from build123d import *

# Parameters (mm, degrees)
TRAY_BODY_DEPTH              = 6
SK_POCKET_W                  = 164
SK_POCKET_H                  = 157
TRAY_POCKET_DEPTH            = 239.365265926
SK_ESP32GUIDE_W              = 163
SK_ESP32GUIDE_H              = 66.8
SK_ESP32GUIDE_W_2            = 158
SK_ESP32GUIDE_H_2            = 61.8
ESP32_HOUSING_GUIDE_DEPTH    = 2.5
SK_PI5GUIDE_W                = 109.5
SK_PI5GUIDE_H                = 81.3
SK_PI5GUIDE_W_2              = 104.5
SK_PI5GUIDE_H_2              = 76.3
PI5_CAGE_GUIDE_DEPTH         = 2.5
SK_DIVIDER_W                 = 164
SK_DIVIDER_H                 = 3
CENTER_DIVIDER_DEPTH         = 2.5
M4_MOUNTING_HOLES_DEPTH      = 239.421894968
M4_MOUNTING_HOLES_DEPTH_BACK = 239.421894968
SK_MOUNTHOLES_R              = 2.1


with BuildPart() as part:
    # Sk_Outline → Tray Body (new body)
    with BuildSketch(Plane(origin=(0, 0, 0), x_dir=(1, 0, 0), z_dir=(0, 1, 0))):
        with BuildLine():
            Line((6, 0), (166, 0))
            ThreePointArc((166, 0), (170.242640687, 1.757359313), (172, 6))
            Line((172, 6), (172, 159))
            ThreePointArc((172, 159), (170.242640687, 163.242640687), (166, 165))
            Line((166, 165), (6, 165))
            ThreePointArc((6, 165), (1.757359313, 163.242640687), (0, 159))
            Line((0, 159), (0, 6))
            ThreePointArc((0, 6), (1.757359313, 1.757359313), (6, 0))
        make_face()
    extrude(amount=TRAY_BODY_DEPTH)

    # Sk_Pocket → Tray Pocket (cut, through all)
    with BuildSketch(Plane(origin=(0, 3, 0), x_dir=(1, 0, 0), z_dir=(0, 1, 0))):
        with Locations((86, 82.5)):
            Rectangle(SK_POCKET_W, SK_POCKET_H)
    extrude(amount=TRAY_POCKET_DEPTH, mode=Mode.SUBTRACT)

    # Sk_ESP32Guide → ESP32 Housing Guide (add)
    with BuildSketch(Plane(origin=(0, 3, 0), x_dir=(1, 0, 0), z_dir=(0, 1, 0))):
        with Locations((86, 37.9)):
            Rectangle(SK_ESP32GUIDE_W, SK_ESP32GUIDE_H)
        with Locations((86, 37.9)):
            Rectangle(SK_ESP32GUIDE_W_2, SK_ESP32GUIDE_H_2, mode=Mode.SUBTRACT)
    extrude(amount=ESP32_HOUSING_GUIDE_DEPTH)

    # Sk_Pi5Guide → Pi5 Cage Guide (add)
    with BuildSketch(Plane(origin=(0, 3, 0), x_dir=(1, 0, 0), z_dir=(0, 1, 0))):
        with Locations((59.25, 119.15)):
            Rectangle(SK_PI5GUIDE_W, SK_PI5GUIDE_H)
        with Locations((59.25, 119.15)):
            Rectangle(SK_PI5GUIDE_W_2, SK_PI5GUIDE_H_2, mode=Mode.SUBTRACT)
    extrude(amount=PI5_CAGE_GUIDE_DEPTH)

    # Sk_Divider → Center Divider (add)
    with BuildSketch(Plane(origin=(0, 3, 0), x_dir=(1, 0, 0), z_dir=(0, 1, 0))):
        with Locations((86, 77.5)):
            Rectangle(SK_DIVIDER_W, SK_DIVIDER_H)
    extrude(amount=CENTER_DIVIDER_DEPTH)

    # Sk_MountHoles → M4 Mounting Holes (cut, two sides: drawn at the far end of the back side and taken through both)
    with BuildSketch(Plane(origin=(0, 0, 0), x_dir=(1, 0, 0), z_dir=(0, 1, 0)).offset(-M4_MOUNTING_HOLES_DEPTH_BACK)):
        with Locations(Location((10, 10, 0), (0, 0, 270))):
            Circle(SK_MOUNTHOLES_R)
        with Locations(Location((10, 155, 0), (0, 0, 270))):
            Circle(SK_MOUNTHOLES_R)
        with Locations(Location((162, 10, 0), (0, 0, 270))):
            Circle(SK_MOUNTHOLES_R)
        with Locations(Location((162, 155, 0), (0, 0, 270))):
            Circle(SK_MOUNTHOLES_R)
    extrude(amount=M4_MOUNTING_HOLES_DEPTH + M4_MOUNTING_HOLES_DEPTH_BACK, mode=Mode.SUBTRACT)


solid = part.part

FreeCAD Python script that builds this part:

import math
import FreeCAD as App
import Part
import Sketcher
from FreeCAD import Vector
Q = App.Units.Quantity


def add_polygon(sketch, points):
    """Adds a closed chain of lines whose ends are joined by coincident constraints."""
    first, n = sketch.GeometryCount, len(points)
    for a, b in zip(points, points[1:] + points[:1]):
        sketch.addGeometry(Part.LineSegment(App.Vector(*a, 0), App.Vector(*b, 0)), False)
    for i in range(n):
        sketch.addConstraint(Sketcher.Constraint("Coincident", first + i, 2, first + (i + 1) % n, 1))

doc = App.newDocument("Part")
body = doc.addObject("PartDesign::Body", "Body")

# Sketch on XZ plane
sketch1 = body.newObject("Sketcher::SketchObject", "Sketch")
sketch1.AttachmentSupport = (doc.getObject("XZ_Plane"), [""])
sketch1.MapMode = "FlatFace"
sketch1.addGeometry(Part.LineSegment(Vector(6, 0, 0), Vector(166, 0, 0)), False)
sketch1.addGeometry(Part.ArcOfCircle(Part.Circle(Vector(166, -6, 0), Vector(0, 0, 1), 6), math.radians(0), math.radians(90)), False)
sketch1.addGeometry(Part.LineSegment(Vector(172, -6, 0), Vector(172, -159, 0)), False)
sketch1.addGeometry(Part.ArcOfCircle(Part.Circle(Vector(166, -159, 0), Vector(0, 0, 1), 6), math.radians(-90), math.radians(0)), False)
sketch1.addGeometry(Part.LineSegment(Vector(166, -165, 0), Vector(6, -165, 0)), False)
sketch1.addGeometry(Part.ArcOfCircle(Part.Circle(Vector(6, -159, 0), Vector(0, 0, 1), 6), math.radians(180), math.radians(270)), False)
sketch1.addGeometry(Part.LineSegment(Vector(0, -159, 0), Vector(0, -6, 0)), False)
sketch1.addGeometry(Part.ArcOfCircle(Part.Circle(Vector(6, -6, 0), Vector(0, 0, 1), 6), math.radians(90), math.radians(180)), False)
sketch1.addConstraint(Sketcher.Constraint("Tangent", 0, 2, 1, 2))
sketch1.addConstraint(Sketcher.Constraint("Tangent", 1, 1, 2, 1))
sketch1.addConstraint(Sketcher.Constraint("Tangent", 2, 2, 3, 2))
sketch1.addConstraint(Sketcher.Constraint("Tangent", 3, 1, 4, 1))
sketch1.addConstraint(Sketcher.Constraint("Tangent", 4, 2, 5, 2))
sketch1.addConstraint(Sketcher.Constraint("Tangent", 5, 1, 6, 1))
sketch1.addConstraint(Sketcher.Constraint("Tangent", 6, 2, 7, 2))
sketch1.addConstraint(Sketcher.Constraint("Tangent", 7, 1, 0, 1))
sketch1.addConstraint(Sketcher.Constraint("Horizontal", 0))
sketch1.addConstraint(Sketcher.Constraint("Vertical", 2))
sketch1.addConstraint(Sketcher.Constraint("Horizontal", 4))
sketch1.addConstraint(Sketcher.Constraint("Vertical", 6))
sketch1.addConstraint(Sketcher.Constraint("Equal", 1, 3))
sketch1.addConstraint(Sketcher.Constraint("Equal", 3, 5))
sketch1.addConstraint(Sketcher.Constraint("Equal", 5, 7))
sketch1.addConstraint(Sketcher.Constraint("PointOnObject", 0, 2, -1))
sketch1.addConstraint(Sketcher.Constraint("PointOnObject", 5, 1, -2))
sketch1.addConstraint(Sketcher.Constraint("Radius", 1, Q("6 mm")))
sketch1.addConstraint(Sketcher.Constraint("DistanceX", 0, 1, 0, 2, Q("160 mm")))
sketch1.addConstraint(Sketcher.Constraint("DistanceY", 2, 2, 2, 1, Q("153 mm")))
pad1 = body.newObject("PartDesign::Pad", "Pad")
pad1.Profile = sketch1
pad1.Length = 6
pad1.Reversed = True

# Sketch on XZ plane
sketch2 = body.newObject("Sketcher::SketchObject", "Sketch001")
sketch2.AttachmentSupport = (doc.getObject("XZ_Plane"), [""])
sketch2.MapMode = "FlatFace"
sketch2.AttachmentOffset = App.Placement(Vector(0, 0, -3), App.Rotation())
add_polygon(sketch2, [(4, -161), (4, -4), (168, -4), (168, -161)])  # lines 0-3
sketch2.addConstraint(Sketcher.Constraint("Vertical", 0))
sketch2.addConstraint(Sketcher.Constraint("Horizontal", 1))
sketch2.addConstraint(Sketcher.Constraint("Vertical", 2))
sketch2.addConstraint(Sketcher.Constraint("Horizontal", 3))
sketch2.addConstraint(Sketcher.Constraint("DistanceX", 1, 1, 1, 2, Q("164 mm")))
sketch2.addConstraint(Sketcher.Constraint("DistanceY", 0, 1, 0, 2, Q("157 mm")))
sketch2.addConstraint(Sketcher.Constraint("DistanceX", -1, 1, 0, 2, Q("4 mm")))
sketch2.addConstraint(Sketcher.Constraint("DistanceY", 0, 2, -1, 1, Q("4 mm")))
pocket1 = body.newObject("PartDesign::Pocket", "Pocket")
pocket1.Profile = sketch2
pocket1.Type = "ThroughAll"

# Sketch on XZ plane
sketch3 = body.newObject("Sketcher::SketchObject", "Sketch002")
sketch3.AttachmentSupport = (doc.getObject("XZ_Plane"), [""])
sketch3.MapMode = "FlatFace"
sketch3.AttachmentOffset = App.Placement(Vector(0, 0, -3), App.Rotation())
add_polygon(sketch3, [(4, -71), (4, -4), (168, -4), (168, -71)])  # lines 0-3
add_polygon(sketch3, [(165, -7), (7, -7), (7, -69), (165, -69)])  # lines 4-7
sketch3.addConstraint(Sketcher.Constraint("Vertical", 0))
sketch3.addConstraint(Sketcher.Constraint("Horizontal", 1))
sketch3.addConstraint(Sketcher.Constraint("Vertical", 2))
sketch3.addConstraint(Sketcher.Constraint("Horizontal", 3))
sketch3.addConstraint(Sketcher.Constraint("Horizontal", 4))
sketch3.addConstraint(Sketcher.Constraint("Vertical", 5))
sketch3.addConstraint(Sketcher.Constraint("Horizontal", 6))
sketch3.addConstraint(Sketcher.Constraint("Vertical", 7))
sketch3.addConstraint(Sketcher.Constraint("DistanceX", 1, 1, 1, 2, Q("163 mm")))
sketch3.addConstraint(Sketcher.Constraint("DistanceX", 4, 2, 4, 1, Q("158 mm")))
sketch3.addConstraint(Sketcher.Constraint("DistanceY", 0, 1, 0, 2, Q("66.8 mm")))
sketch3.addConstraint(Sketcher.Constraint("DistanceY", 5, 2, 5, 1, Q("61.8 mm")))
sketch3.addConstraint(Sketcher.Constraint("DistanceX", -1, 1, 4, 2, Q("7 mm")))
sketch3.addConstraint(Sketcher.Constraint("DistanceY", 4, 2, -1, 1, Q("7 mm")))
sketch3.addConstraint(Sketcher.Constraint("DistanceX", -1, 1, 0, 2, Q("4.5 mm")))
sketch3.addConstraint(Sketcher.Constraint("DistanceY", 0, 2, -1, 1, Q("4.5 mm")))
pad2 = body.newObject("PartDesign::Pad", "Pad001")
pad2.Profile = sketch3
pad2.Length = 2.5
pad2.Reversed = True

# Sketch on XZ plane
sketch4 = body.newObject("Sketcher::SketchObject", "Sketch003")
sketch4.AttachmentSupport = (doc.getObject("XZ_Plane"), [""])
sketch4.MapMode = "FlatFace"
sketch4.AttachmentOffset = App.Placement(Vector(0, 0, -3), App.Rotation())
add_polygon(sketch4, [(4, -160), (4, -78), (114, -78), (114, -160)])  # lines 0-3
add_polygon(sketch4, [(112, -81), (7, -81), (7, -157), (112, -157)])  # lines 4-7
sketch4.addConstraint(Sketcher.Constraint("Vertical", 0))
sketch4.addConstraint(Sketcher.Constraint("Horizontal", 1))
sketch4.addConstraint(Sketcher.Constraint("Vertical", 2))
sketch4.addConstraint(Sketcher.Constraint("Horizontal", 3))
sketch4.addConstraint(Sketcher.Constraint("Horizontal", 4))
sketch4.addConstraint(Sketcher.Constraint("Vertical", 5))
sketch4.addConstraint(Sketcher.Constraint("Horizontal", 6))
sketch4.addConstraint(Sketcher.Constraint("Vertical", 7))
sketch4.addConstraint(Sketcher.Constraint("DistanceX", 1, 1, 1, 2, Q("109.5 mm")))
sketch4.addConstraint(Sketcher.Constraint("DistanceX", 4, 2, 4, 1, Q("104.5 mm")))
sketch4.addConstraint(Sketcher.Constraint("DistanceY", 0, 1, 0, 2, Q("81.3 mm")))
sketch4.addConstraint(Sketcher.Constraint("DistanceY", 5, 2, 5, 1, Q("76.3 mm")))
sketch4.addConstraint(Sketcher.Constraint("DistanceX", -1, 1, 1, 2, Q("114 mm")))
sketch4.addConstraint(Sketcher.Constraint("DistanceX", -1, 1, 4, 2, Q("7 mm")))
sketch4.addConstraint(Sketcher.Constraint("DistanceY", 4, 2, -1, 1, Q("81 mm")))
sketch4.addConstraint(Sketcher.Constraint("DistanceY", 0, 2, -1, 1, Q("78.5 mm")))
pad3 = body.newObject("PartDesign::Pad", "Pad002")
pad3.Profile = sketch4
pad3.Length = 2.5
pad3.Reversed = True

# Sketch on XZ plane
sketch5 = body.newObject("Sketcher::SketchObject", "Sketch004")
sketch5.AttachmentSupport = (doc.getObject("XZ_Plane"), [""])
sketch5.MapMode = "FlatFace"
sketch5.AttachmentOffset = App.Placement(Vector(0, 0, -3), App.Rotation())
add_polygon(sketch5, [(4, -79), (4, -76), (168, -76), (168, -79)])  # lines 0-3
sketch5.addConstraint(Sketcher.Constraint("Vertical", 0))
sketch5.addConstraint(Sketcher.Constraint("Horizontal", 1))
sketch5.addConstraint(Sketcher.Constraint("Vertical", 2))
sketch5.addConstraint(Sketcher.Constraint("Horizontal", 3))
sketch5.addConstraint(Sketcher.Constraint("DistanceX", 1, 1, 1, 2, Q("164 mm")))
sketch5.addConstraint(Sketcher.Constraint("DistanceY", 0, 1, 0, 2, Q("3 mm")))
sketch5.addConstraint(Sketcher.Constraint("DistanceX", -1, 1, 0, 2, Q("4 mm")))
sketch5.addConstraint(Sketcher.Constraint("DistanceY", 0, 2, -1, 1, Q("76 mm")))
pad4 = body.newObject("PartDesign::Pad", "Pad003")
pad4.Profile = sketch5
pad4.Length = 2.5
pad4.Reversed = True

# Sketch on XZ plane
sketch6 = body.newObject("Sketcher::SketchObject", "Sketch005")
sketch6.AttachmentSupport = (doc.getObject("XZ_Plane"), [""])
sketch6.MapMode = "FlatFace"
sketch6.addGeometry(Part.Circle(Vector(10, -10, 0), Vector(0, 0, 1), 2.1), False)
sketch6.addGeometry(Part.Circle(Vector(10, -155, 0), Vector(0, 0, 1), 2.1), False)
sketch6.addGeometry(Part.Circle(Vector(162, -10, 0), Vector(0, 0, 1), 2.1), False)
sketch6.addGeometry(Part.Circle(Vector(162, -155, 0), Vector(0, 0, 1), 2.1), False)
sketch6.addConstraint(Sketcher.Constraint("Equal", 0, 1))
sketch6.addConstraint(Sketcher.Constraint("Equal", 1, 2))
sketch6.addConstraint(Sketcher.Constraint("Equal", 2, 3))
sketch6.addConstraint(Sketcher.Constraint("Horizontal", 0, 3, 2, 3))
sketch6.addConstraint(Sketcher.Constraint("Horizontal", 1, 3, 3, 3))
sketch6.addConstraint(Sketcher.Constraint("Vertical", 0, 3, 1, 3))
sketch6.addConstraint(Sketcher.Constraint("Vertical", 2, 3, 3, 3))
sketch6.addConstraint(Sketcher.Constraint("Diameter", 0, Q("4.2 mm")))
sketch6.addConstraint(Sketcher.Constraint("DistanceX", -1, 1, 0, 3, Q("10 mm")))
sketch6.addConstraint(Sketcher.Constraint("DistanceY", 0, 3, -1, 1, Q("10 mm")))
sketch6.addConstraint(Sketcher.Constraint("DistanceY", 1, 3, -1, 1, Q("155 mm")))
sketch6.addConstraint(Sketcher.Constraint("DistanceX", -1, 1, 2, 3, Q("162 mm")))
pocket2 = body.newObject("PartDesign::Pocket", "Pocket001")
pocket2.Profile = sketch6
pocket2.Type = "ThroughAll"
pocket2.Midplane = True

doc.recompute()
